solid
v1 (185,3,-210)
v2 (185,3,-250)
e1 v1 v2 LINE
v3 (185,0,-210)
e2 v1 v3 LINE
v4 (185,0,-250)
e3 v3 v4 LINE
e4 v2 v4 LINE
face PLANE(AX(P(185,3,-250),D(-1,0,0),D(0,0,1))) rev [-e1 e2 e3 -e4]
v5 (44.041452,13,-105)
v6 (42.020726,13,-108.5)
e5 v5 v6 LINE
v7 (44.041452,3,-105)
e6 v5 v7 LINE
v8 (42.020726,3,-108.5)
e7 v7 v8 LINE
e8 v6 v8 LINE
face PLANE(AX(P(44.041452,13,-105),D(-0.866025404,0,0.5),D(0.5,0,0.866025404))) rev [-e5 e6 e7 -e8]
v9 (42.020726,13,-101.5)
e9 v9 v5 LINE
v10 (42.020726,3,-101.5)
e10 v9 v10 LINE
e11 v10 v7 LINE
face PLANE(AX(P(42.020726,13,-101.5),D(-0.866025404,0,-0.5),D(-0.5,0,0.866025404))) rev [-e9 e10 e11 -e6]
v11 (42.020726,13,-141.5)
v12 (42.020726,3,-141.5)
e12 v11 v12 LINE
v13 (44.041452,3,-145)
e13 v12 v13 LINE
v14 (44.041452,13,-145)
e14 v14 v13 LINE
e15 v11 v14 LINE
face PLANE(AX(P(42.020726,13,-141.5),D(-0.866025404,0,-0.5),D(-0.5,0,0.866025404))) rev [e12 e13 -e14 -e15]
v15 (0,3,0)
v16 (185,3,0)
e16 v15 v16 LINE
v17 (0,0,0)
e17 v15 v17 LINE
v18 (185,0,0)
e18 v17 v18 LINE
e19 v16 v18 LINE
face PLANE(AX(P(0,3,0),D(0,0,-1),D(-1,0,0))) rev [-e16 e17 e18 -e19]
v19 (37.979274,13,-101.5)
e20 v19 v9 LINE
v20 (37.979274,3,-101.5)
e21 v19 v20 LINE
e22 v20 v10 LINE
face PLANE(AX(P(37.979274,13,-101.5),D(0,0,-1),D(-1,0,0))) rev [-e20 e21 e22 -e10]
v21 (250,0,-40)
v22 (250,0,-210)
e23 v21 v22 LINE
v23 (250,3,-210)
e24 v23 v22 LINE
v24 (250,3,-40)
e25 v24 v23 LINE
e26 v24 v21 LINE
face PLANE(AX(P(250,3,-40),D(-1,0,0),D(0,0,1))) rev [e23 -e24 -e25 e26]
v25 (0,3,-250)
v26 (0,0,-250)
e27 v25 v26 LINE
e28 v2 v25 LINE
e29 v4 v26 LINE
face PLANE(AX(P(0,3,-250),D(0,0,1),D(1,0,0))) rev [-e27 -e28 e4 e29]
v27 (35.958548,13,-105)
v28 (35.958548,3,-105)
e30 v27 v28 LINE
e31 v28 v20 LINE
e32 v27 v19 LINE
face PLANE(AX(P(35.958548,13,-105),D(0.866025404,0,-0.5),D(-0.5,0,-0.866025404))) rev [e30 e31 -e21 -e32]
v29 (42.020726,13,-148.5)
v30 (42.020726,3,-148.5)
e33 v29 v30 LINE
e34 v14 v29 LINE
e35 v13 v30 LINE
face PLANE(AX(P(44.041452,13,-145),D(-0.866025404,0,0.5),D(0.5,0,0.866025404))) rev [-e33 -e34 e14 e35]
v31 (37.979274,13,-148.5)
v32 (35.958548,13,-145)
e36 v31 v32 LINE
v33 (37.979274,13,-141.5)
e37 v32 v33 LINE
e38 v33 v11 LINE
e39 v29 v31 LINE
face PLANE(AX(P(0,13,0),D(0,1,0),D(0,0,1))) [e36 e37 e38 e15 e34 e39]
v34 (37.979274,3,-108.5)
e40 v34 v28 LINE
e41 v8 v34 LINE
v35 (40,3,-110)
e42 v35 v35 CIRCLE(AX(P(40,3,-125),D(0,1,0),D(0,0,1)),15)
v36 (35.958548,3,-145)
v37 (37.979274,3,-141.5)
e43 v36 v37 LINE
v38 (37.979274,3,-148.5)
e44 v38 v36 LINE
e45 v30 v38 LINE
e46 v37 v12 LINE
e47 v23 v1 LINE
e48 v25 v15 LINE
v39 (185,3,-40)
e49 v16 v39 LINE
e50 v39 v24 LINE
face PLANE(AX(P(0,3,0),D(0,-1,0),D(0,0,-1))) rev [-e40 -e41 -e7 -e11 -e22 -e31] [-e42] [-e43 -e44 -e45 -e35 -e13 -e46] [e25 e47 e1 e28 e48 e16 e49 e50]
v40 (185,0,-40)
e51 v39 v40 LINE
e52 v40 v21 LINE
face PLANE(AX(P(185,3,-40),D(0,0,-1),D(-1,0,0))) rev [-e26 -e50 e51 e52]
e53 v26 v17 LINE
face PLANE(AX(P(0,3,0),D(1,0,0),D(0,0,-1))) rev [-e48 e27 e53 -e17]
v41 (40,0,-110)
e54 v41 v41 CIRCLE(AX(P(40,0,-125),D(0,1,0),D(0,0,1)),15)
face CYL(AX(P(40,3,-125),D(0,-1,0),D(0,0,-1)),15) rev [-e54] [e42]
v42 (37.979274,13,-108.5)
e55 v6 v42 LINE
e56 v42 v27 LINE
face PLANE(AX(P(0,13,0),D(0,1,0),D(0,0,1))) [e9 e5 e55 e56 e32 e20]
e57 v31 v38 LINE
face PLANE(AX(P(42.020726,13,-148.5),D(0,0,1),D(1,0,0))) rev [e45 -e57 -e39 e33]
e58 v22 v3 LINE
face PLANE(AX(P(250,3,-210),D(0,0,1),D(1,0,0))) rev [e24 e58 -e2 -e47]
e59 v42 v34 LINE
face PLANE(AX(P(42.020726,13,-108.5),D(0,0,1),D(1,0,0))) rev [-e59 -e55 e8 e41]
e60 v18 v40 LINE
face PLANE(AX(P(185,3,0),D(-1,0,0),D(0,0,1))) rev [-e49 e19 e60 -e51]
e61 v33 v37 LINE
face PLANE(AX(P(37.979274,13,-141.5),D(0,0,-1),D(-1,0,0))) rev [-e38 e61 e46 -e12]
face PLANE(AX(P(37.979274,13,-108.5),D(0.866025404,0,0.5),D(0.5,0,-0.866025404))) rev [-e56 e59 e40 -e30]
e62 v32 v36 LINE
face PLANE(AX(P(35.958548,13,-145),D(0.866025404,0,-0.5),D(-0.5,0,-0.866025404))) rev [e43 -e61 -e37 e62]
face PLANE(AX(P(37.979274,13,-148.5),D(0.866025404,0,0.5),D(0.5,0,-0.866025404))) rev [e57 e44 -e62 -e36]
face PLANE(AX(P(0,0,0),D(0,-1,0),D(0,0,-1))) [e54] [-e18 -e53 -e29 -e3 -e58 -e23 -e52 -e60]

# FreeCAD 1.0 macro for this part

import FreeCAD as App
import Part
import Sketcher
Q = App.Units.Quantity


def add_polygon(sketch, points):
    """Adds a closed chain of lines whose ends are joined by coincident constraints."""
    first, n = sketch.GeometryCount, len(points)
    for a, b in zip(points, points[1:] + points[:1]):
        sketch.addGeometry(Part.LineSegment(App.Vector(*a, 0), App.Vector(*b, 0)), False)
    for i in range(n):
        sketch.addConstraint(Sketcher.Constraint("Coincident", first + i, 2, first + (i + 1) % n, 1))

doc = App.newDocument("Part")
params = doc.addObject("Spreadsheet::Sheet", "Params")
for row, (alias, value) in enumerate([
    ("sketch1_diameter", "30 mm"),
    ("sketch1_width", "185 mm"),
    ("sketch1_width2", "65 mm"),
    ("sketch1_height", "40 mm"),
    ("sketch1_height2", "170 mm"),
    ("pad1_length", "3 mm"),
    ("pad2_length", "10 mm"),
], start=1):
    params.set(f"A{row}", alias)
    params.set(f"B{row}", "=" + value)
    params.setAlias(f"B{row}", alias)

body = doc.addObject("PartDesign::Body", "Body")

# Sketch on XZ plane
sketch1 = doc.addObject("Sketcher::SketchObject", "Sketch")
body.addObject(sketch1)
sketch1.AttachmentSupport = (doc.XZ_Plane, [""])
sketch1.MapMode = "FlatFace"
add_polygon(sketch1, [(0, 0), (185, 0), (185, -40), (250, -40), (250, -210), (185, -210), (185, -250), (0, -250)])  # lines 0-7
sketch1.addGeometry(Part.Circle(App.Vector(40, -125, 0), App.Vector(0, 0, 1), 15), False)  # 8
sketch1.addConstraint([
    Sketcher.Constraint("Horizontal", 0),
    Sketcher.Constraint("Vertical", 1),
    Sketcher.Constraint("Horizontal", 2),
    Sketcher.Constraint("Vertical", 3),
    Sketcher.Constraint("Horizontal", 4),
    Sketcher.Constraint("Vertical", 5),
    Sketcher.Constraint("Horizontal", 6),
    Sketcher.Constraint("Vertical", 7),
    Sketcher.Constraint("Coincident", 7, 2, -1, 1),
    Sketcher.Constraint("Vertical", 1, 2, 4, 2),
    Sketcher.Constraint("Equal", 1, 5),
    Sketcher.Constraint("Diameter", 8, 30.0),
    Sketcher.Constraint("DistanceX", 0, 1, 0, 2, 185.0),
    Sketcher.Constraint("DistanceX", 2, 1, 2, 2, 65.0),
    Sketcher.Constraint("DistanceY", 1, 2, 1, 1, 40.0),
    Sketcher.Constraint("DistanceY", 3, 2, 3, 1, 170.0),
    Sketcher.Constraint("DistanceX", -1, 1, 8, 3, 40.0),
    Sketcher.Constraint("DistanceY", 8, 3, -1, 1, 125.0),
])
sketch1.setExpression("Constraints[19]", "Params.sketch1_diameter")
sketch1.setExpression("Constraints[20]", "Params.sketch1_width")
sketch1.setExpression("Constraints[21]", "Params.sketch1_width2")
sketch1.setExpression("Constraints[22]", "Params.sketch1_height")
sketch1.setExpression("Constraints[23]", "Params.sketch1_height2")
pad1 = doc.addObject("PartDesign::Pad", "Pad")
body.addObject(pad1)
pad1.Profile = sketch1
pad1.setExpression("Length", "Params.pad1_length")
pad1.Reversed = True

# Sketch on XZ plane
sketch2 = doc.addObject("Sketcher::SketchObject", "Sketch001")
body.addObject(sketch2)
sketch2.AttachmentSupport = (doc.XZ_Plane, [""])
sketch2.MapMode = "FlatFace"
sketch2.AttachmentOffset = App.Placement(App.Vector(0, 0, -3), App.Rotation())
add_polygon(sketch2, [(44.041452, -145), (42.020726, -148.5), (37.979274, -148.5), (35.958548, -145), (37.979274, -141.5), (42.020726, -141.5)])  # lines 0-5
add_polygon(sketch2, [(44.041452, -105), (42.020726, -108.5), (37.979274, -108.5), (35.958548, -105), (37.979274, -101.5), (42.020726, -101.5)])  # lines 6-11
sketch2.addConstraint([
    Sketcher.Constraint("Horizontal", 1),
    Sketcher.Constraint("Horizontal", 4),
    Sketcher.Constraint("Horizontal", 7),
    Sketcher.Constraint("Horizontal", 10),
    Sketcher.Constraint("Parallel", 0, 3),
    Sketcher.Constraint("Parallel", 2, 5),
    Sketcher.Constraint("Parallel", 3, 6),
    Sketcher.Constraint("Parallel", 5, 8),
    Sketcher.Constraint("Parallel", 6, 9),
    Sketcher.Constraint("Parallel", 8, 11),
    Sketcher.Constraint("Horizontal", 2, 2, 5, 2),
    Sketcher.Constraint("Horizontal", 8, 2, 11, 2),
    Sketcher.Constraint("Vertical", 1, 2, 3, 2),
    Sketcher.Constraint("Vertical", 0, 2, 4, 2),
    Sketcher.Constraint("Vertical", 4, 2, 6, 2),
    Sketcher.Constraint("Vertical", 3, 2, 7, 2),
    Sketcher.Constraint("Vertical", 2, 2, 8, 2),
    Sketcher.Constraint("Vertical", 7, 2, 9, 2),
    Sketcher.Constraint("Angle", 0, Q("-120 deg")),
    Sketcher.Constraint("DistanceY", 2, 2, -1, 1, 145.0),
    Sketcher.Constraint("DistanceY", 8, 2, -1, 1, 105.0),
    Sketcher.Constraint("DistanceY", 1, 2, 3, 2, 7.0),
    Sketcher.Constraint("DistanceX", 1, 2, 1, 1, 4.041452),
    Sketcher.Constraint("DistanceX", -1, 1, 2, 2, 35.958548),
])
pad2 = doc.addObject("PartDesign::Pad", "Pad001")
body.addObject(pad2)
pad2.Profile = sketch2
pad2.setExpression("Length", "Params.pad2_length")
pad2.Reversed = True

doc.recompute()
